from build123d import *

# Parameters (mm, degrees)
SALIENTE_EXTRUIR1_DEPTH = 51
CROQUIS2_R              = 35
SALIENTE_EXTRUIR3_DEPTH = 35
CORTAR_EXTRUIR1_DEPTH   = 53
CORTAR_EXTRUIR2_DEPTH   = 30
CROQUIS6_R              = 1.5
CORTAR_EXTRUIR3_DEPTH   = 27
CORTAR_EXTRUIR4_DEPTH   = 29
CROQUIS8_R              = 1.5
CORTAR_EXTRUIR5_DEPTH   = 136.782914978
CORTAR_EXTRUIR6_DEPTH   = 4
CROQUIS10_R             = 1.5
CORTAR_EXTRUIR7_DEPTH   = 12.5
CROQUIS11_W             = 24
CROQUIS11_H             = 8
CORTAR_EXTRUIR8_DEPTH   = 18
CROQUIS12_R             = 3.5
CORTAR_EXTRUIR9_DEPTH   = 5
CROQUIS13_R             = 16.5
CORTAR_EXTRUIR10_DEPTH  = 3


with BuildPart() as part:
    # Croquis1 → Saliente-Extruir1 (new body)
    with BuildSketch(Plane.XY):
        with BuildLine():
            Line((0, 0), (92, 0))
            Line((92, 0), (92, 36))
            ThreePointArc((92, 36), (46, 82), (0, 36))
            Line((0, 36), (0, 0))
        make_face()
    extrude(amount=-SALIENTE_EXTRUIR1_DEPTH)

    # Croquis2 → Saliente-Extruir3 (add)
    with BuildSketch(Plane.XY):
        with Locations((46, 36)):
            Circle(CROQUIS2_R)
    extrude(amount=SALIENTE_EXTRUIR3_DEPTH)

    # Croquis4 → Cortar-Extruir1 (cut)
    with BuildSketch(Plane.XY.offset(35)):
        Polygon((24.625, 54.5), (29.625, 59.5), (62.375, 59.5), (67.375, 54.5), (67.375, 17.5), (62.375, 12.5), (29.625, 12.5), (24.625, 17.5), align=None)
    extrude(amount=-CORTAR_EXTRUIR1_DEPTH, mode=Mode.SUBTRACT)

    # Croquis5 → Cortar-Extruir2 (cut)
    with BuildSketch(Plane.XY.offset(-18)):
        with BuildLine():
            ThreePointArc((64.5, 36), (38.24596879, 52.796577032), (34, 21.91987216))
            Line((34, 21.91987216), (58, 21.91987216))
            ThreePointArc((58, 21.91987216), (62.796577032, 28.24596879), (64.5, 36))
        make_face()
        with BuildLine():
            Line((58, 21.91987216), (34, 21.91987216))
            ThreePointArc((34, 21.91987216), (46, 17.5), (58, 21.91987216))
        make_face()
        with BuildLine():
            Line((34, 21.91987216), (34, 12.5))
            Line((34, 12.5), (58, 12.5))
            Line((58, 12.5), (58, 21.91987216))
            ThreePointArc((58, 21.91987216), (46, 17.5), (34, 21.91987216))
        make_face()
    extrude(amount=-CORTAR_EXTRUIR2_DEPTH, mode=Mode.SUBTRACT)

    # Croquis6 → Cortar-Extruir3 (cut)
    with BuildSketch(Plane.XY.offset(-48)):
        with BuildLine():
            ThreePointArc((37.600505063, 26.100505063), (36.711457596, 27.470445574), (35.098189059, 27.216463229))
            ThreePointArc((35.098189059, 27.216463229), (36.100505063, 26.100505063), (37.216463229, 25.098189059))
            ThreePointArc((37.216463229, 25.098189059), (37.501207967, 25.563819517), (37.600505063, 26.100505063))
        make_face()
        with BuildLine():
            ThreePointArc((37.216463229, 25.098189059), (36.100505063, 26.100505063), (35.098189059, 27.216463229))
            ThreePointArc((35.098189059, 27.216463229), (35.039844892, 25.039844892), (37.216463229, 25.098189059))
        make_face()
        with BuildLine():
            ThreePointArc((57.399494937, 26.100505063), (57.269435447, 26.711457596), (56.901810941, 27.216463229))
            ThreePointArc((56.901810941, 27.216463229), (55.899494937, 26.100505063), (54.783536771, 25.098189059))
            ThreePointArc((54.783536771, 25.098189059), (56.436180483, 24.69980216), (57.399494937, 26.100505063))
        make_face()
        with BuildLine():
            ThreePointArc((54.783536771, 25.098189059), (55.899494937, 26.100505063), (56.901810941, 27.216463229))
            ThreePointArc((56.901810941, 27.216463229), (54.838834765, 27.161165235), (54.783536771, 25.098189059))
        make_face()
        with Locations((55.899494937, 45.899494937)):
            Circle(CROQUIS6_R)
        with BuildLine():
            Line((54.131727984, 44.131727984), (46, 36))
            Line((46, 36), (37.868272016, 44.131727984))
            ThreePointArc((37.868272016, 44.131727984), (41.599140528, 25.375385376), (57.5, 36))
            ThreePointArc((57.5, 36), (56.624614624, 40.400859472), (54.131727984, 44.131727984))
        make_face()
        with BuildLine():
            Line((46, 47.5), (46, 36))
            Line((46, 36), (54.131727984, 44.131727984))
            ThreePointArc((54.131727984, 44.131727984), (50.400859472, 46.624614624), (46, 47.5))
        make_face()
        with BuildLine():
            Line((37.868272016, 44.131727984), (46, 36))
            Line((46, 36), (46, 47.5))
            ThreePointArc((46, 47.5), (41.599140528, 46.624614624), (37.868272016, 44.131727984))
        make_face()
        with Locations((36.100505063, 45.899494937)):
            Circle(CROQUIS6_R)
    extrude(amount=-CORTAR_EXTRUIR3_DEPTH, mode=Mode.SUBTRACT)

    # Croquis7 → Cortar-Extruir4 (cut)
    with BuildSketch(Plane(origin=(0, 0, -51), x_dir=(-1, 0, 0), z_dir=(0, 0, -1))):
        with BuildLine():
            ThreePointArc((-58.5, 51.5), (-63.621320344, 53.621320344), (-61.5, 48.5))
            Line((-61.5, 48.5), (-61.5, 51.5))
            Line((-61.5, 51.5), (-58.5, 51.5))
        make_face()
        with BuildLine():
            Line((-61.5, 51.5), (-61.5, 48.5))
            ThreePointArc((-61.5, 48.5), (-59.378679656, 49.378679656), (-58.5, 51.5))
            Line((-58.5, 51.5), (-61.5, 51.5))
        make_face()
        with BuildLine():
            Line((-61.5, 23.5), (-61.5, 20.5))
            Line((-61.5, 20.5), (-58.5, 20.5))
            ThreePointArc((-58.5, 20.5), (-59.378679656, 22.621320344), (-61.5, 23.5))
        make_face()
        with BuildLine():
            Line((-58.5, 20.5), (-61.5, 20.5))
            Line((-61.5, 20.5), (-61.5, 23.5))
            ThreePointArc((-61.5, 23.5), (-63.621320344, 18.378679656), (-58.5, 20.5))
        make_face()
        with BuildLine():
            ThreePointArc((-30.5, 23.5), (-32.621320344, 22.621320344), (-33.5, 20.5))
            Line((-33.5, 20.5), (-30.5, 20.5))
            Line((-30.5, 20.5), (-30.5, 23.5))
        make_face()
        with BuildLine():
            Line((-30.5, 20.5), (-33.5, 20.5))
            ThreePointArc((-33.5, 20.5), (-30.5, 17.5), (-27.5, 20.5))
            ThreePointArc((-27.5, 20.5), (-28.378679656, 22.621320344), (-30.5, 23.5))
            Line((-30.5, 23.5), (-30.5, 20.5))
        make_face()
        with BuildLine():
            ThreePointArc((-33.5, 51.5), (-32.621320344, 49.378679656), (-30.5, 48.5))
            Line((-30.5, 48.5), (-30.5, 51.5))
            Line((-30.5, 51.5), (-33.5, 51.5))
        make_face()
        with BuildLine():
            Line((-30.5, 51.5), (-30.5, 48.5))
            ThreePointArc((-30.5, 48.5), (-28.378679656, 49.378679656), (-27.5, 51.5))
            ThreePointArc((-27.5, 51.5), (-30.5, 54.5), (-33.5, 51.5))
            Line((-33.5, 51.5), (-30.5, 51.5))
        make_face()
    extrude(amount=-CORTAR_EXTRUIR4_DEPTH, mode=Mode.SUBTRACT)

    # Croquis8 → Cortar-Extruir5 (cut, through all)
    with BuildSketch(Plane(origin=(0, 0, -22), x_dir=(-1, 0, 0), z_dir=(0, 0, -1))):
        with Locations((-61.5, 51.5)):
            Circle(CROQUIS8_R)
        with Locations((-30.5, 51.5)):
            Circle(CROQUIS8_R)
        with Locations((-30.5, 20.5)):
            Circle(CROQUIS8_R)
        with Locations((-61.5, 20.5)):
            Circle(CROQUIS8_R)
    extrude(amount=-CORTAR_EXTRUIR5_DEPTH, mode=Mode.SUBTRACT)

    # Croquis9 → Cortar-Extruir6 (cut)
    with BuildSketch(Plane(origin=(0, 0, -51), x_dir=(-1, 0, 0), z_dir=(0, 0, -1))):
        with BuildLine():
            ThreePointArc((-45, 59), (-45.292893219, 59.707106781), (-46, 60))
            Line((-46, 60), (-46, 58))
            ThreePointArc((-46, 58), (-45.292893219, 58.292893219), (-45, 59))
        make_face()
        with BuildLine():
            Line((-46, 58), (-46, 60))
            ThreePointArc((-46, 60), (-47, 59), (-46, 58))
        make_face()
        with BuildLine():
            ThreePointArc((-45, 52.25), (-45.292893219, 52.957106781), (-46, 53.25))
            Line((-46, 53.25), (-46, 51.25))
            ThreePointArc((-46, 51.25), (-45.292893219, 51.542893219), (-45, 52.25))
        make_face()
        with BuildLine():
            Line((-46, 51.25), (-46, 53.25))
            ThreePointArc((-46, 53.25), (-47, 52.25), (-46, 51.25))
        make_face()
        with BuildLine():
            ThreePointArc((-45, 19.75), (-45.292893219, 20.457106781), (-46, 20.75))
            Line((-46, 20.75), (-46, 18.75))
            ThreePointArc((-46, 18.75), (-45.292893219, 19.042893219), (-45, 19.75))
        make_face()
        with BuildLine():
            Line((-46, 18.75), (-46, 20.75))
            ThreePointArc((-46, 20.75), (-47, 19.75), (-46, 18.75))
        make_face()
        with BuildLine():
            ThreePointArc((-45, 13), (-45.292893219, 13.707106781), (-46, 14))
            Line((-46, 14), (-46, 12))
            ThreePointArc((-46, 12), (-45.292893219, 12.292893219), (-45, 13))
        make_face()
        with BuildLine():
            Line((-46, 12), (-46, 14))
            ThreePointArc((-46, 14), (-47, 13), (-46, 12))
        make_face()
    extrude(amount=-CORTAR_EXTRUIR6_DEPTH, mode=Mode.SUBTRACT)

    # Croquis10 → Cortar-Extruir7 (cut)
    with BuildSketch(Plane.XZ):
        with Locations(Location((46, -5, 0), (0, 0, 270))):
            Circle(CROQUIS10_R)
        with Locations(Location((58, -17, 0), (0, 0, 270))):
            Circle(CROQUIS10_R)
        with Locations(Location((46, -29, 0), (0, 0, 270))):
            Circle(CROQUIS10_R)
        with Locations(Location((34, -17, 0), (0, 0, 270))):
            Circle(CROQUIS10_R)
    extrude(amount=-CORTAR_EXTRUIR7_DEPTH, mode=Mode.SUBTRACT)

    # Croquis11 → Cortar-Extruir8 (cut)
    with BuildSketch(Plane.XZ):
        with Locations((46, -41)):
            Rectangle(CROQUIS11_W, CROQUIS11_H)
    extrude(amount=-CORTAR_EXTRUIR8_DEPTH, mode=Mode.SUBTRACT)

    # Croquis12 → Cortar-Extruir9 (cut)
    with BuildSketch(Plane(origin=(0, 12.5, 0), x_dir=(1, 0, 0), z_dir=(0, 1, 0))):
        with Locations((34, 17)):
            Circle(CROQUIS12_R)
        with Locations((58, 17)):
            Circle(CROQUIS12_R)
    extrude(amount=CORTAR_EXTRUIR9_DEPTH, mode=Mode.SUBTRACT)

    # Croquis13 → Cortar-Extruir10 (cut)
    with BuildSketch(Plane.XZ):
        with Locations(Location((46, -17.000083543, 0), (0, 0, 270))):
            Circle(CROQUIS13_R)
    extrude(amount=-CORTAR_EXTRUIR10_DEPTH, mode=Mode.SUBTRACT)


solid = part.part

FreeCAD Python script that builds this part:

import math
import FreeCAD as App
import Part
import Sketcher
Q = App.Units.Quantity

doc = App.newDocument("Part")
body = doc.addObject("PartDesign::Body", "Body")

# Sketch on XY plane
sketch1 = doc.addObject("Sketcher::SketchObject", "Sketch")
body.addObject(sketch1)
sketch1.AttachmentSupport = (doc.XY_Plane, [""])
sketch1.MapMode = "FlatFace"
sketch1.addGeometry([
    Part.LineSegment(App.Vector(0, 0, 0), App.Vector(92, 0, 0)),
    Part.LineSegment(App.Vector(92, 0, 0), App.Vector(92, 36, 0)),
    Part.ArcOfCircle(Part.Circle(App.Vector(46, 36, 0), App.Vector(0, 0, 1), 46), math.radians(0), math.radians(180)),
    Part.LineSegment(App.Vector(0, 36, 0), App.Vector(0, 0, 0)),
], False)
sketch1.addConstraint([
    Sketcher.Constraint("Coincident", 0, 2, 1, 1),
    Sketcher.Constraint("Tangent", 1, 2, 2, 1),
    Sketcher.Constraint("Tangent", 2, 2, 3, 1),
    Sketcher.Constraint("Coincident", 3, 2, 0, 1),
    Sketcher.Constraint("Horizontal", 0),
    Sketcher.Constraint("Vertical", 1),
    Sketcher.Constraint("Vertical", 3),
    Sketcher.Constraint("Coincident", 3, 2, -1, 1),
    Sketcher.Constraint("Radius", 2, Q("46 mm")),
    Sketcher.Constraint("DistanceY", 1, 1, 1, 2, Q("36 mm")),
])
pad1 = doc.addObject("PartDesign::Pad", "Pad")
body.addObject(pad1)
pad1.Profile = sketch1
pad1.Length = 51
pad1.Reversed = True

# Sketch on XY plane
sketch2 = doc.addObject("Sketcher::SketchObject", "Sketch001")
body.addObject(sketch2)
sketch2.AttachmentSupport = (doc.XY_Plane, [""])
sketch2.MapMode = "FlatFace"
sketch2.addGeometry(Part.Circle(App.Vector(46, 36, 0), App.Vector(0, 0, 1), 35), False)
sketch2.addConstraint([
    Sketcher.Constraint("Diameter", 0, Q("70 mm")),
    Sketcher.Constraint("DistanceX", -1, 1, 0, 3, Q("46 mm")),
    Sketcher.Constraint("DistanceY", -1, 1, 0, 3, Q("36 mm")),
])
pad2 = doc.addObject("PartDesign::Pad", "Pad001")
body.addObject(pad2)
pad2.Profile = sketch2
pad2.Length = 35

# Sketch on XY plane
sketch3 = doc.addObject("Sketcher::SketchObject", "Sketch002")
body.addObject(sketch3)
sketch3.AttachmentSupport = (doc.XY_Plane, [""])
sketch3.MapMode = "FlatFace"
sketch3.AttachmentOffset = App.Placement(App.Vector(0, 0, 35), App.Rotation())
sketch3.addGeometry([
    Part.LineSegment(App.Vector(29.625, 59.5, 0), App.Vector(24.625, 54.5, 0)),  # 0
    Part.LineSegment(App.Vector(24.625, 54.5, 0), App.Vector(24.625, 17.5, 0)),  # 1
    Part.LineSegment(App.Vector(24.625, 17.5, 0), App.Vector(29.625, 12.5, 0)),  # 2
    Part.LineSegment(App.Vector(29.625, 12.5, 0), App.Vector(62.375, 12.5, 0)),  # 3
    Part.LineSegment(App.Vector(62.375, 12.5, 0), App.Vector(67.375, 17.5, 0)),  # 4
    Part.LineSegment(App.Vector(67.375, 17.5, 0), App.Vector(67.375, 54.5, 0)),  # 5
    Part.LineSegment(App.Vector(67.375, 54.5, 0), App.Vector(62.375, 59.5, 0)),  # 6
    Part.LineSegment(App.Vector(62.375, 59.5, 0), App.Vector(29.625, 59.5, 0)),  # 7
], False)
sketch3.addConstraint([
    Sketcher.Constraint("Coincident", 0, 2, 1, 1),
    Sketcher.Constraint("Coincident", 1, 2, 2, 1),
    Sketcher.Constraint("Coincident", 2, 2, 3, 1),
    Sketcher.Constraint("Coincident", 3, 2, 4, 1),
    Sketcher.Constraint("Coincident", 4, 2, 5, 1),
    Sketcher.Constraint("Coincident", 5, 2, 6, 1),
    Sketcher.Constraint("Coincident", 6, 2, 7, 1),
    Sketcher.Constraint("Coincident", 7, 2, 0, 1),
    Sketcher.Constraint("Vertical", 1),
    Sketcher.Constraint("Horizontal", 3),
    Sketcher.Constraint("Vertical", 5),
    Sketcher.Constraint("Horizontal", 7),
    Sketcher.Constraint("Perpendicular", 0, 2),
    Sketcher.Constraint("Perpendicular", 2, 4),
    Sketcher.Constraint("Perpendicular", 4, 6),
    Sketcher.Constraint("Horizontal", 1, 2, 4, 2),
    Sketcher.Constraint("Horizontal", 0, 2, 5, 2),
    Sketcher.Constraint("Vertical", 3, 2, 6, 2),
    Sketcher.Constraint("Vertical", 2, 2, 7, 2),
    Sketcher.Constraint("DistanceY", 1, 2, 1, 1, Q("37 mm")),
    Sketcher.Constraint("DistanceX", 1, 2, 2, 2, Q("5 mm")),
    Sketcher.Constraint("DistanceX", 3, 1, 3, 2, Q("32.75 mm")),
    Sketcher.Constraint("DistanceY", -1, 1, 0, 2, Q("54.5 mm")),
    Sketcher.Constraint("DistanceX", -1, 1, 0, 2, Q("24.625 mm")),
])
pocket1 = doc.addObject("PartDesign::Pocket", "Pocket")
body.addObject(pocket1)
pocket1.Profile = sketch3
pocket1.Length = 53

# Sketch on XY plane
sketch4 = doc.addObject("Sketcher::SketchObject", "Sketch003")
body.addObject(sketch4)
sketch4.AttachmentSupport = (doc.XY_Plane, [""])
sketch4.MapMode = "FlatFace"
sketch4.AttachmentOffset = App.Placement(App.Vector(0, 0, -18), App.Rotation())
sketch4.addGeometry([
    Part.ArcOfCircle(Part.Circle(App.Vector(46, 36, 0), App.Vector(0, 0, 1), 18.5), math.radians(0), math.radians(229.560207)),  # 0
    Part.LineSegment(App.Vector(34, 21.919872, 0), App.Vector(34, 12.5, 0)),  # 1
    Part.LineSegment(App.Vector(34, 12.5, 0), App.Vector(58, 12.5, 0)),  # 2
    Part.LineSegment(App.Vector(58, 12.5, 0), App.Vector(58, 21.919872, 0)),  # 3
    Part.ArcOfCircle(Part.Circle(App.Vector(46, 36, 0), App.Vector(0, 0, 1), 18.5), math.radians(-49.560207), math.radians(0)),  # 4
], False)
sketch4.addConstraint([
    Sketcher.Constraint("Coincident", 0, 2, 1, 1),
    Sketcher.Constraint("Coincident", 1, 2, 2, 1),
    Sketcher.Constraint("Coincident", 2, 2, 3, 1),
    Sketcher.Constraint("Coincident", 3, 2, 4, 1),
    Sketcher.Constraint("Tangent", 4, 2, 0, 1),
    Sketcher.Constraint("Vertical", 1),
    Sketcher.Constraint("Horizontal", 2),
    Sketcher.Constraint("Vertical", 3),
    Sketcher.Constraint("Equal", 0, 4),
    Sketcher.Constraint("Horizontal", 0, 2, 3, 2),
    Sketcher.Constraint("Horizontal", 0, 3, 4, 2),
    Sketcher.Constraint("Radius", 0, Q("18.5 mm")),
    Sketcher.Constraint("DistanceX", 2, 1, 2, 2, Q("24 mm")),
    Sketcher.Constraint("DistanceX", -1, 1, 0, 3, Q("46 mm")),
    Sketcher.Constraint("DistanceY", -1, 1, 0, 3, Q("36 mm")),
    Sketcher.Constraint("DistanceY", -1, 1, 1, 2, Q("12.5 mm")),
])
pocket2 = doc.addObject("PartDesign::Pocket", "Pocket001")
body.addObject(pocket2)
pocket2.Profile = sketch4
pocket2.Length = 30

# Sketch on XY plane
sketch5 = doc.addObject("Sketcher::SketchObject", "Sketch004")
body.addObject(sketch5)
sketch5.AttachmentSupport = (doc.XY_Plane, [""])
sketch5.MapMode = "FlatFace"
sketch5.AttachmentOffset = App.Placement(App.Vector(0, 0, -48), App.Rotation())
sketch5.addGeometry([
    Part.ArcOfCircle(Part.Circle(App.Vector(36.100505, 26.100505, 0), App.Vector(0, 0, 1), 1.5), math.radians(0), math.radians(131.929113)),  # 0
    Part.ArcOfCircle(Part.Circle(App.Vector(36.100505, 26.100505, 0), App.Vector(0, 0, 1), 1.5), math.radians(131.929113), math.radians(318.070887)),  # 1
    Part.ArcOfCircle(Part.Circle(App.Vector(36.100505, 26.100505, 0), App.Vector(0, 0, 1), 1.5), math.radians(-41.929113), math.radians(0)),  # 2
    Part.ArcOfCircle(Part.Circle(App.Vector(55.899495, 26.100505, 0), App.Vector(0, 0, 1), 1.5), math.radians(0), math.radians(48.070887)),  # 3
    Part.ArcOfCircle(Part.Circle(App.Vector(55.899495, 26.100505, 0), App.Vector(0, 0, 1), 1.5), math.radians(48.070887), math.radians(221.929113)),  # 4
    Part.ArcOfCircle(Part.Circle(App.Vector(55.899495, 26.100505, 0), App.Vector(0, 0, 1), 1.5), math.radians(-138.070887), math.radians(0)),  # 5
    Part.Circle(App.Vector(55.899495, 45.899495, 0), App.Vector(0, 0, 1), 1.5),  # 6
    Part.ArcOfCircle(Part.Circle(App.Vector(46, 36, 0), App.Vector(0, 0, 1), 11.5), math.radians(135), math.radians(360)),  # 7
    Part.ArcOfCircle(Part.Circle(App.Vector(46, 36, 0), App.Vector(0, 0, 1), 11.5), math.radians(0), math.radians(45)),  # 8
    Part.ArcOfCircle(Part.Circle(App.Vector(46, 36, 0), App.Vector(0, 0, 1), 11.5), math.radians(45), math.radians(90)),  # 9
    Part.ArcOfCircle(Part.Circle(App.Vector(46, 36, 0), App.Vector(0, 0, 1), 11.5), math.radians(90), math.radians(135)),  # 10
    Part.Circle(App.Vector(36.100505, 45.899495, 0), App.Vector(0, 0, 1), 1.5),  # 11
], False)
sketch5.addConstraint([
    Sketcher.Constraint("Tangent", 0, 2, 1, 1),
    Sketcher.Constraint("Tangent", 1, 2, 2, 1),
    Sketcher.Constraint("Tangent", 2, 2, 0, 1),
    Sketcher.Constraint("Tangent", 3, 2, 4, 1),
    Sketcher.Constraint("Tangent", 4, 2, 5, 1),
    Sketcher.Constraint("Tangent", 5, 2, 3, 1),
    Sketcher.Constraint("Tangent", 7, 2, 8, 1),
    Sketcher.Constraint("Tangent", 8, 2, 9, 1),
    Sketcher.Constraint("Tangent", 9, 2, 10, 1),
    Sketcher.Constraint("Tangent", 10, 2, 7, 1),
    Sketcher.Constraint("Equal", 2, 3),
    Sketcher.Constraint("Equal", 5, 6),
    Sketcher.Constraint("Equal", 7, 8),
    Sketcher.Constraint("Equal", 6, 11),
    Sketcher.Constraint("Horizontal", 2, 3, 3, 3),
    Sketcher.Constraint("Horizontal", 6, 3, 11, 3),
    Sketcher.Constraint("Horizontal", 5, 3, 2, 2),
    Sketcher.Constraint("Horizontal", 0, 2, 3, 2),
    Sketcher.Constraint("Horizontal", 1, 2, 4, 2),
    Sketcher.Constraint("Horizontal", 2, 2, 5, 2),
    Sketcher.Constraint("Horizontal", 10, 3, 7, 2),
    Sketcher.Constraint("Horizontal", 8, 2, 10, 2),
    Sketcher.Constraint("Vertical", 5, 3, 6, 3),
    Sketcher.Constraint("Vertical", 2, 3, 11, 3),
    Sketcher.Constraint("Vertical", 10, 3, 9, 2),
    Sketcher.Constraint("Diameter", 6, Q("3 mm")),
    Sketcher.Constraint("Radius", 7, Q("11.5 mm")),
    Sketcher.Constraint("DistanceX", -1, 1, 7, 3, Q("46 mm")),
    Sketcher.Constraint("DistanceY", -1, 1, 7, 3, Q("36 mm")),
    Sketcher.Constraint("DistanceX", -1, 1, 0, 2, Q("35.098189 mm")),
    Sketcher.Constraint("DistanceY", -1, 1, 1, 2, Q("25.098189 mm")),
    Sketcher.Constraint("DistanceX", -1, 1, 3, 2, Q("56.901811 mm")),
    Sketcher.Constraint("DistanceX", 2, 3, 3, 3, Q("19.79899 mm")),
    Sketcher.Constraint("DistanceY", 5, 3, 6, 3, Q("19.79899 mm")),
    Sketcher.Constraint("DistanceX", 2, 3, 1, 2, Q("1.115958 mm")),
    Sketcher.Constraint("DistanceX", -1, 1, 8, 2, Q("54.131728 mm")),
])
pocket3 = doc.addObject("PartDesign::Pocket", "Pocket002")
body.addObject(pocket3)
pocket3.Profile = sketch5
pocket3.Length = 27

# Sketch on XY plane
sketch6 = doc.addObject("Sketcher::SketchObject", "Sketch005")
body.addObject(sketch6)
sketch6.AttachmentSupport = (doc.XY_Plane, [""])
sketch6.MapMode = "FlatFace"
sketch6.AttachmentOffset = App.Placement(App.Vector(0, 0, -51), App.Rotation())
sketch6.addGeometry([
    Part.ArcOfCircle(Part.Circle(App.Vector(61.5, 51.5, 0), App.Vector(0, 0, 1), 3), math.radians(-90), math.radians(180)),  # 0
    Part.ArcOfCircle(Part.Circle(App.Vector(61.5, 51.5, 0), App.Vector(0, 0, 1), 3), math.radians(180), math.radians(270)),  # 1
    Part.ArcOfCircle(Part.Circle(App.Vector(61.5, 20.5, 0), App.Vector(0, 0, 1), 3), math.radians(90), math.radians(180)),  # 2
    Part.ArcOfCircle(Part.Circle(App.Vector(61.5, 20.5, 0), App.Vector(0, 0, 1), 3), math.radians(180), math.radians(450)),  # 3
    Part.ArcOfCircle(Part.Circle(App.Vector(30.5, 20.5, 0), App.Vector(0, 0, 1), 3), math.radians(0), math.radians(90)),  # 4
    Part.ArcOfCircle(Part.Circle(App.Vector(30.5, 20.5, 0), App.Vector(0, 0, 1), 3), math.radians(180), math.radians(360)),  # 5
    Part.ArcOfCircle(Part.Circle(App.Vector(30.5, 20.5, 0), App.Vector(0, 0, 1), 3), math.radians(90), math.radians(180)),  # 6
    Part.ArcOfCircle(Part.Circle(App.Vector(30.5, 51.5, 0), App.Vector(0, 0, 1), 3), math.radians(-90), math.radians(0)),  # 7
    Part.ArcOfCircle(Part.Circle(App.Vector(30.5, 51.5, 0), App.Vector(0, 0, 1), 3), math.radians(180), math.radians(270)),  # 8
    Part.ArcOfCircle(Part.Circle(App.Vector(30.5, 51.5, 0), App.Vector(0, 0, 1), 3), math.radians(0), math.radians(180)),  # 9
], False)
sketch6.addConstraint([
    Sketcher.Constraint("Tangent", 0, 1, 1, 2),
    Sketcher.Constraint("Coincident", 1, 1, 0, 2),
    Sketcher.Constraint("Tangent", 2, 1, 3, 2),
    Sketcher.Constraint("Coincident", 3, 1, 2, 2),
    Sketcher.Constraint("Tangent", 4, 1, 5, 2),
    Sketcher.Constraint("Tangent", 5, 1, 6, 2),
    Sketcher.Constraint("Tangent", 6, 1, 4, 2),
    Sketcher.Constraint("Tangent", 7, 1, 8, 2),
    Sketcher.Constraint("Tangent", 8, 1, 9, 2),
    Sketcher.Constraint("Tangent", 9, 1, 7, 2),
    Sketcher.Constraint("Equal", 1, 2),
    Sketcher.Constraint("Equal", 3, 4),
    Sketcher.Constraint("Equal", 6, 7),
    Sketcher.Constraint("Horizontal", 3, 3, 4, 3),
    Sketcher.Constraint("Horizontal", 1, 3, 7, 3),
    Sketcher.Constraint("Horizontal", 9, 3, 1, 1),
    Sketcher.Constraint("Horizontal", 6, 3, 3, 1),
    Sketcher.Constraint("Horizontal", 3, 1, 4, 1),
    Sketcher.Constraint("Horizontal", 4, 1, 5, 1),
    Sketcher.Constraint("Horizontal", 1, 1, 8, 1),
    Sketcher.Constraint("Horizontal", 8, 1, 9, 1),
    Sketcher.Constraint("Vertical", 1, 3, 2, 3),
    Sketcher.Constraint("Vertical", 6, 3, 7, 3),
    Sketcher.Constraint("Vertical", 3, 3, 0, 1),
    Sketcher.Constraint("Vertical", 0, 1, 2, 1),
    Sketcher.Constraint("Vertical", 9, 3, 6, 1),
    Sketcher.Constraint("Vertical", 6, 1, 7, 1),
    Sketcher.Constraint("Radius", 0, Q("3 mm")),
    Sketcher.Constraint("DistanceY", 2, 3, 1, 3, Q("31 mm")),
    Sketcher.Constraint("DistanceX", 4, 3, 2, 3, Q("31 mm")),
    Sketcher.Constraint("DistanceX", -1, 1, 0, 3, Q("61.5 mm")),
    Sketcher.Constraint("DistanceY", -1, 1, 0, 3, Q("51.5 mm")),
])
pocket4 = doc.addObject("PartDesign::Pocket", "Pocket003")
body.addObject(pocket4)
pocket4.Profile = sketch6
pocket4.Length = 29
pocket4.Reversed = True

# Sketch on XY plane
sketch7 = doc.addObject("Sketcher::SketchObject", "Sketch006")
body.addObject(sketch7)
sketch7.AttachmentSupport = (doc.XY_Plane, [""])
sketch7.MapMode = "FlatFace"
sketch7.AttachmentOffset = App.Placement(App.Vector(0, 0, -22), App.Rotation())
sketch7.addGeometry([
    Part.Circle(App.Vector(61.5, 51.5, 0), App.Vector(0, 0, 1), 1.5),
    Part.Circle(App.Vector(30.5, 51.5, 0), App.Vector(0, 0, 1), 1.5),
    Part.Circle(App.Vector(30.5, 20.5, 0), App.Vector(0, 0, 1), 1.5),
    Part.Circle(App.Vector(61.5, 20.5, 0), App.Vector(0, 0, 1), 1.5),
], False)
sketch7.addConstraint([
    Sketcher.Constraint("Equal", 0, 1),
    Sketcher.Constraint("Equal", 1, 2),
    Sketcher.Constraint("Equal", 2, 3),
    Sketcher.Constraint("Horizontal", 0, 3, 1, 3),
    Sketcher.Constraint("Horizontal", 2, 3, 3, 3),
    Sketcher.Constraint("Vertical", 1, 3, 2, 3),
    Sketcher.Constraint("Vertical", 0, 3, 3, 3),
    Sketcher.Constraint("Diameter", 0, Q("3 mm")),
    Sketcher.Constraint("DistanceX", 1, 3, 0, 3, Q("31 mm")),
    Sketcher.Constraint("DistanceY", 2, 3, 1, 3, Q("31 mm")),
    Sketcher.Constraint("DistanceX", -1, 1, 0, 3, Q("61.5 mm")),
    Sketcher.Constraint("DistanceY", -1, 1, 0, 3, Q("51.5 mm")),
])
pocket5 = doc.addObject("PartDesign::Pocket", "Pocket004")
body.addObject(pocket5)
pocket5.Profile = sketch7
pocket5.Type = "ThroughAll"
pocket5.Reversed = True

# Sketch on XY plane
sketch8 = doc.addObject("Sketcher::SketchObject", "Sketch007")
body.addObject(sketch8)
sketch8.AttachmentSupport = (doc.XY_Plane, [""])
sketch8.MapMode = "FlatFace"
sketch8.AttachmentOffset = App.Placement(App.Vector(0, 0, -51), App.Rotation())
sketch8.addGeometry([
    Part.ArcOfCircle(Part.Circle(App.Vector(46, 59, 0), App.Vector(0, 0, 1), 1), math.radians(90), math.radians(180)),  # 0
    Part.ArcOfCircle(Part.Circle(App.Vector(46, 59, 0), App.Vector(0, 0, 1), 1), math.radians(-90), math.radians(90)),  # 1
    Part.ArcOfCircle(Part.Circle(App.Vector(46, 59, 0), App.Vector(0, 0, 1), 1), math.radians(-180), math.radians(-90)),  # 2
    Part.ArcOfCircle(Part.Circle(App.Vector(46, 52.25, 0), App.Vector(0, 0, 1), 1), math.radians(90), math.radians(180)),  # 3
    Part.ArcOfCircle(Part.Circle(App.Vector(46, 52.25, 0), App.Vector(0, 0, 1), 1), math.radians(-90), math.radians(90)),  # 4
    Part.ArcOfCircle(Part.Circle(App.Vector(46, 52.25, 0), App.Vector(0, 0, 1), 1), math.radians(-180), math.radians(-90)),  # 5
    Part.ArcOfCircle(Part.Circle(App.Vector(46, 19.75, 0), App.Vector(0, 0, 1), 1), math.radians(90), math.radians(180)),  # 6
    Part.ArcOfCircle(Part.Circle(App.Vector(46, 19.75, 0), App.Vector(0, 0, 1), 1), math.radians(-90), math.radians(90)),  # 7
    Part.ArcOfCircle(Part.Circle(App.Vector(46, 19.75, 0), App.Vector(0, 0, 1), 1), math.radians(-180), math.radians(-90)),  # 8
    Part.ArcOfCircle(Part.Circle(App.Vector(46, 13, 0), App.Vector(0, 0, 1), 1), math.radians(90), math.radians(180)),  # 9
    Part.ArcOfCircle(Part.Circle(App.Vector(46, 13, 0), App.Vector(0, 0, 1), 1), math.radians(-90), math.radians(90)),  # 10
    Part.ArcOfCircle(Part.Circle(App.Vector(46, 13, 0), App.Vector(0, 0, 1), 1), math.radians(-180), math.radians(-90)),  # 11
], False)
sketch8.addConstraint([
    Sketcher.Constraint("Tangent", 0, 1, 1, 2),
    Sketcher.Constraint("Tangent", 1, 1, 2, 2),
    Sketcher.Constraint("Tangent", 2, 1, 0, 2),
    Sketcher.Constraint("Tangent", 3, 1, 4, 2),
    Sketcher.Constraint("Tangent", 4, 1, 5, 2),
    Sketcher.Constraint("Tangent", 5, 1, 3, 2),
    Sketcher.Constraint("Tangent", 6, 1, 7, 2),
    Sketcher.Constraint("Tangent", 7, 1, 8, 2),
    Sketcher.Constraint("Tangent", 8, 1, 6, 2),
    Sketcher.Constraint("Tangent", 9, 1, 10, 2),
    Sketcher.Constraint("Tangent", 10, 1, 11, 2),
    Sketcher.Constraint("Tangent", 11, 1, 9, 2),
    Sketcher.Constraint("Equal", 2, 3),
    Sketcher.Constraint("Equal", 5, 6),
    Sketcher.Constraint("Equal", 8, 9),
    Sketcher.Constraint("Horizontal", 1, 3, 2, 1),
    Sketcher.Constraint("Horizontal", 4, 3, 5, 1),
    Sketcher.Constraint("Horizontal", 7, 3, 8, 1),
    Sketcher.Constraint("Horizontal", 10, 3, 11, 1),
    Sketcher.Constraint("Vertical", 2, 3, 3, 3),
    Sketcher.Constraint("Vertical", 5, 3, 6, 3),
    Sketcher.Constraint("Vertical", 8, 3, 9, 3),
    Sketcher.Constraint("Vertical", 11, 3, 0, 1),
    Sketcher.Constraint("Vertical", 0, 1, 1, 1),
    Sketcher.Constraint("Vertical", 1, 1, 3, 1),
    Sketcher.Constraint("Vertical", 3, 1, 4, 1),
    Sketcher.Constraint("Vertical", 4, 1, 6, 1),
    Sketcher.Constraint("Vertical", 6, 1, 7, 1),
    Sketcher.Constraint("Vertical", 7, 1, 9, 1),
    Sketcher.Constraint("Vertical", 9, 1, 10, 1),
    Sketcher.Constraint("Radius", 0, Q("1 mm")),
    Sketcher.Constraint("DistanceX", -1, 1, 0, 3, Q("46 mm")),
    Sketcher.Constraint("DistanceY", -1, 1, 0, 3, Q("59 mm")),
    Sketcher.Constraint("DistanceY", -1, 1, 9, 3, Q("13 mm")),
    Sketcher.Constraint("DistanceY", 6, 3, 3, 3, Q("32.5 mm")),
    Sketcher.Constraint("DistanceY", -1, 1, 3, 3, Q("52.25 mm")),
])
pocket6 = doc.addObject("PartDesign::Pocket", "Pocket005")
body.addObject(pocket6)
pocket6.Profile = sketch8
pocket6.Length = 4
pocket6.Reversed = True

# Sketch on XZ plane
sketch9 = doc.addObject("Sketcher::SketchObject", "Sketch008")
body.addObject(sketch9)
sketch9.AttachmentSupport = (doc.XZ_Plane, [""])
sketch9.MapMode = "FlatFace"
sketch9.addGeometry([
    Part.Circle(App.Vector(46, -5, 0), App.Vector(0, 0, 1), 1.5),
    Part.Circle(App.Vector(58, -17, 0), App.Vector(0, 0, 1), 1.5),
    Part.Circle(App.Vector(46, -29, 0), App.Vector(0, 0, 1), 1.5),
    Part.Circle(App.Vector(34, -17, 0), App.Vector(0, 0, 1), 1.5),
], False)
sketch9.addConstraint([
    Sketcher.Constraint("Equal", 0, 1),
    Sketcher.Constraint("Equal", 1, 2),
    Sketcher.Constraint("Equal", 2, 3),
    Sketcher.Constraint("Horizontal", 1, 3, 3, 3),
    Sketcher.Constraint("Vertical", 0, 3, 2, 3),
    Sketcher.Constraint("Diameter", 0, Q("3 mm")),
    Sketcher.Constraint("DistanceX", -1, 1, 0, 3, Q("46 mm")),
    Sketcher.Constraint("DistanceY", 0, 3, -1, 1, Q("5 mm")),
    Sketcher.Constraint("DistanceX", -1, 1, 1, 3, Q("58 mm")),
    Sketcher.Constraint("DistanceY", 1, 3, -1, 1, Q("17 mm")),
    Sketcher.Constraint("DistanceY", 2, 3, -1, 1, Q("29 mm")),
    Sketcher.Constraint("DistanceX", -1, 1, 3, 3, Q("34 mm")),
])
pocket7 = doc.addObject("PartDesign::Pocket", "Pocket006")
body.addObject(pocket7)
pocket7.Profile = sketch9
pocket7.Length = 12.5

# Sketch on XZ plane
sketch10 = doc.addObject("Sketcher::SketchObject", "Sketch009")
body.addObject(sketch10)
sketch10.AttachmentSupport = (doc.XZ_Plane, [""])
sketch10.MapMode = "FlatFace"
sketch10.addGeometry([
    Part.LineSegment(App.Vector(34, -37, 0), App.Vector(34, -45, 0)),
    Part.LineSegment(App.Vector(34, -45, 0), App.Vector(58, -45, 0)),
    Part.LineSegment(App.Vector(58, -45, 0), App.Vector(58, -37, 0)),
    Part.LineSegment(App.Vector(58, -37, 0), App.Vector(34, -37, 0)),
], False)
sketch10.addConstraint([
    Sketcher.Constraint("Coincident", 0, 2, 1, 1),
    Sketcher.Constraint("Coincident", 1, 2, 2, 1),
    Sketcher.Constraint("Coincident", 2, 2, 3, 1),
    Sketcher.Constraint("Coincident", 3, 2, 0, 1),
    Sketcher.Constraint("Vertical", 0),
    Sketcher.Constraint("Horizontal", 1),
    Sketcher.Constraint("Vertical", 2),
    Sketcher.Constraint("Horizontal", 3),
    Sketcher.Constraint("DistanceX", 1, 1, 1, 2, Q("24 mm")),
    Sketcher.Constraint("DistanceY", 0, 2, 0, 1, Q("8 mm")),
    Sketcher.Constraint("DistanceX", -1, 1, 0, 2, Q("34 mm")),
    Sketcher.Constraint("DistanceY", 0, 2, -1, 1, Q("45 mm")),
])
pocket8 = doc.addObject("PartDesign::Pocket", "Pocket007")
body.addObject(pocket8)
pocket8.Profile = sketch10
pocket8.Length = 18

# Sketch on XZ plane
sketch11 = doc.addObject("Sketcher::SketchObject", "Sketch010")
body.addObject(sketch11)
sketch11.AttachmentSupport = (doc.XZ_Plane, [""])
sketch11.MapMode = "FlatFace"
sketch11.AttachmentOffset = App.Placement(App.Vector(0, 0, -12.5), App.Rotation())
sketch11.addGeometry([
    Part.Circle(App.Vector(34, -17, 0), App.Vector(0, 0, 1), 3.5),
    Part.Circle(App.Vector(58, -17, 0), App.Vector(0, 0, 1), 3.5),
], False)
sketch11.addConstraint([
    Sketcher.Constraint("Equal", 0, 1),
    Sketcher.Constraint("Horizontal", 0, 3, 1, 3),
    Sketcher.Constraint("Diameter", 0, Q("7 mm")),
    Sketcher.Constraint("DistanceX", -1, 1, 0, 3, Q("34 mm")),
    Sketcher.Constraint("DistanceY", 0, 3, -1, 1, Q("17 mm")),
    Sketcher.Constraint("DistanceX", -1, 1, 1, 3, Q("58 mm")),
])
pocket9 = doc.addObject("PartDesign::Pocket", "Pocket008")
body.addObject(pocket9)
pocket9.Profile = sketch11
pocket9.Length = 5

# Sketch on XZ plane
sketch12 = doc.addObject("Sketcher::SketchObject", "Sketch011")
body.addObject(sketch12)
sketch12.AttachmentSupport = (doc.XZ_Plane, [""])
sketch12.MapMode = "FlatFace"
sketch12.addGeometry(Part.Circle(App.Vector(46, -17.000084, 0), App.Vector(0, 0, 1), 16.5), False)
sketch12.addConstraint([
    Sketcher.Constraint("Diameter", 0, Q("33 mm")),
    Sketcher.Constraint("DistanceX", -1, 1, 0, 3, Q("46 mm")),
    Sketcher.Constraint("DistanceY", 0, 3, -1, 1, Q("17.000084 mm")),
])
pocket10 = doc.addObject("PartDesign::Pocket", "Pocket009")
body.addObject(pocket10)
pocket10.Profile = sketch12
pocket10.Length = 3

doc.recompute()
